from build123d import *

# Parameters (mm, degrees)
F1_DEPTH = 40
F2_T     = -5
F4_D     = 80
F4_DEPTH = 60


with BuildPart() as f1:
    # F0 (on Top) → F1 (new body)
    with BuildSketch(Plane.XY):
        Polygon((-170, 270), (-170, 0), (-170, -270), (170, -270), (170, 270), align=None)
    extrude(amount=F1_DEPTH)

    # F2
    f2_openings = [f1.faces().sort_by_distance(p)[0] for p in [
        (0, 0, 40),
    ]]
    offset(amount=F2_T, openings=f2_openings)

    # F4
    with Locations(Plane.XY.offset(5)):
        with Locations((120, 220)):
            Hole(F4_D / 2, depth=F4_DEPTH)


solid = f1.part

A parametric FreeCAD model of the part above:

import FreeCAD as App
import Part
import Sketcher

V = App.Vector
Q = App.Units.Quantity


def faces_at(feature, points):
    """Names of the faces that lie closest to the given points."""
    faces = feature.Shape.Faces
    near = lambda p: min(range(len(faces)), key=lambda i: faces[i].distToShape(Part.Vertex(*p))[0])
    return sorted({f"Face{near(p) + 1}" for p in points})

doc = App.newDocument("Part")
body = doc.addObject("PartDesign::Body", "Body")

sketch1 = body.newObject("Sketcher::SketchObject", "Sketch")
sketch1.AttachmentSupport = (doc.getObject("XY_Plane"), [""])
sketch1.MapMode = "FlatFace"
sketch1.addGeometry([
    Part.LineSegment(V(-170, 270, 0), V(-170, -270, 0)),
    Part.LineSegment(V(-170, -270, 0), V(170, -270, 0)),
    Part.LineSegment(V(170, -270, 0), V(170, 270, 0)),
    Part.LineSegment(V(170, 270, 0), V(-170, 270, 0)),
], False)
sketch1.addConstraint([
    Sketcher.Constraint("Coincident", 0, 2, 1, 1),
    Sketcher.Constraint("Coincident", 1, 2, 2, 1),
    Sketcher.Constraint("Coincident", 2, 2, 3, 1),
    Sketcher.Constraint("Coincident", 3, 2, 0, 1),
    Sketcher.Constraint("Vertical", 0),
    Sketcher.Constraint("Horizontal", 1),
    Sketcher.Constraint("Vertical", 2),
    Sketcher.Constraint("Horizontal", 3),
    Sketcher.Constraint("Symmetric", 0, 2, 2, 2, -1, 1),
    Sketcher.Constraint("DistanceX", 1, 1, 1, 2, Q("340 mm")),
    Sketcher.Constraint("DistanceY", 0, 2, 0, 1, Q("540 mm")),
])
pad1 = body.newObject("PartDesign::Pad", "Pad")
pad1.Profile = sketch1
pad1.Length = 40
doc.recompute()

thickness = body.newObject("PartDesign::Thickness", "Thickness")
thickness.Base = (pad1, faces_at(pad1, [(0, 0, 40)]))
thickness.Value = 5
thickness.Reversed = True
thickness.Join = "Arc"

sketch2 = body.newObject("Sketcher::SketchObject", "Sketch001")
sketch2.AttachmentSupport = (doc.getObject("XY_Plane"), [""])
sketch2.MapMode = "FlatFace"
sketch2.AttachmentOffset = App.Placement(V(0, 0, 5), App.Rotation())
sketch2.addGeometry(Part.Circle(V(120, 220, 0), V(0, 0, 1), 40), False)
sketch2.addConstraint([
    Sketcher.Constraint("Diameter", 0, Q("80 mm")),
    Sketcher.Constraint("DistanceX", -1, 1, 0, 3, Q("120 mm")),
    Sketcher.Constraint("DistanceY", -1, 1, 0, 3, Q("220 mm")),
])
doc.recompute()
hole = body.newObject("PartDesign::Hole", "Hole")
hole.Profile = sketch2
hole.ThreadType = "None"
hole.Diameter = 80
hole.DepthType = "Dimension"
hole.Depth = 60
hole.DrillPoint = "Flat"

doc.recompute()
